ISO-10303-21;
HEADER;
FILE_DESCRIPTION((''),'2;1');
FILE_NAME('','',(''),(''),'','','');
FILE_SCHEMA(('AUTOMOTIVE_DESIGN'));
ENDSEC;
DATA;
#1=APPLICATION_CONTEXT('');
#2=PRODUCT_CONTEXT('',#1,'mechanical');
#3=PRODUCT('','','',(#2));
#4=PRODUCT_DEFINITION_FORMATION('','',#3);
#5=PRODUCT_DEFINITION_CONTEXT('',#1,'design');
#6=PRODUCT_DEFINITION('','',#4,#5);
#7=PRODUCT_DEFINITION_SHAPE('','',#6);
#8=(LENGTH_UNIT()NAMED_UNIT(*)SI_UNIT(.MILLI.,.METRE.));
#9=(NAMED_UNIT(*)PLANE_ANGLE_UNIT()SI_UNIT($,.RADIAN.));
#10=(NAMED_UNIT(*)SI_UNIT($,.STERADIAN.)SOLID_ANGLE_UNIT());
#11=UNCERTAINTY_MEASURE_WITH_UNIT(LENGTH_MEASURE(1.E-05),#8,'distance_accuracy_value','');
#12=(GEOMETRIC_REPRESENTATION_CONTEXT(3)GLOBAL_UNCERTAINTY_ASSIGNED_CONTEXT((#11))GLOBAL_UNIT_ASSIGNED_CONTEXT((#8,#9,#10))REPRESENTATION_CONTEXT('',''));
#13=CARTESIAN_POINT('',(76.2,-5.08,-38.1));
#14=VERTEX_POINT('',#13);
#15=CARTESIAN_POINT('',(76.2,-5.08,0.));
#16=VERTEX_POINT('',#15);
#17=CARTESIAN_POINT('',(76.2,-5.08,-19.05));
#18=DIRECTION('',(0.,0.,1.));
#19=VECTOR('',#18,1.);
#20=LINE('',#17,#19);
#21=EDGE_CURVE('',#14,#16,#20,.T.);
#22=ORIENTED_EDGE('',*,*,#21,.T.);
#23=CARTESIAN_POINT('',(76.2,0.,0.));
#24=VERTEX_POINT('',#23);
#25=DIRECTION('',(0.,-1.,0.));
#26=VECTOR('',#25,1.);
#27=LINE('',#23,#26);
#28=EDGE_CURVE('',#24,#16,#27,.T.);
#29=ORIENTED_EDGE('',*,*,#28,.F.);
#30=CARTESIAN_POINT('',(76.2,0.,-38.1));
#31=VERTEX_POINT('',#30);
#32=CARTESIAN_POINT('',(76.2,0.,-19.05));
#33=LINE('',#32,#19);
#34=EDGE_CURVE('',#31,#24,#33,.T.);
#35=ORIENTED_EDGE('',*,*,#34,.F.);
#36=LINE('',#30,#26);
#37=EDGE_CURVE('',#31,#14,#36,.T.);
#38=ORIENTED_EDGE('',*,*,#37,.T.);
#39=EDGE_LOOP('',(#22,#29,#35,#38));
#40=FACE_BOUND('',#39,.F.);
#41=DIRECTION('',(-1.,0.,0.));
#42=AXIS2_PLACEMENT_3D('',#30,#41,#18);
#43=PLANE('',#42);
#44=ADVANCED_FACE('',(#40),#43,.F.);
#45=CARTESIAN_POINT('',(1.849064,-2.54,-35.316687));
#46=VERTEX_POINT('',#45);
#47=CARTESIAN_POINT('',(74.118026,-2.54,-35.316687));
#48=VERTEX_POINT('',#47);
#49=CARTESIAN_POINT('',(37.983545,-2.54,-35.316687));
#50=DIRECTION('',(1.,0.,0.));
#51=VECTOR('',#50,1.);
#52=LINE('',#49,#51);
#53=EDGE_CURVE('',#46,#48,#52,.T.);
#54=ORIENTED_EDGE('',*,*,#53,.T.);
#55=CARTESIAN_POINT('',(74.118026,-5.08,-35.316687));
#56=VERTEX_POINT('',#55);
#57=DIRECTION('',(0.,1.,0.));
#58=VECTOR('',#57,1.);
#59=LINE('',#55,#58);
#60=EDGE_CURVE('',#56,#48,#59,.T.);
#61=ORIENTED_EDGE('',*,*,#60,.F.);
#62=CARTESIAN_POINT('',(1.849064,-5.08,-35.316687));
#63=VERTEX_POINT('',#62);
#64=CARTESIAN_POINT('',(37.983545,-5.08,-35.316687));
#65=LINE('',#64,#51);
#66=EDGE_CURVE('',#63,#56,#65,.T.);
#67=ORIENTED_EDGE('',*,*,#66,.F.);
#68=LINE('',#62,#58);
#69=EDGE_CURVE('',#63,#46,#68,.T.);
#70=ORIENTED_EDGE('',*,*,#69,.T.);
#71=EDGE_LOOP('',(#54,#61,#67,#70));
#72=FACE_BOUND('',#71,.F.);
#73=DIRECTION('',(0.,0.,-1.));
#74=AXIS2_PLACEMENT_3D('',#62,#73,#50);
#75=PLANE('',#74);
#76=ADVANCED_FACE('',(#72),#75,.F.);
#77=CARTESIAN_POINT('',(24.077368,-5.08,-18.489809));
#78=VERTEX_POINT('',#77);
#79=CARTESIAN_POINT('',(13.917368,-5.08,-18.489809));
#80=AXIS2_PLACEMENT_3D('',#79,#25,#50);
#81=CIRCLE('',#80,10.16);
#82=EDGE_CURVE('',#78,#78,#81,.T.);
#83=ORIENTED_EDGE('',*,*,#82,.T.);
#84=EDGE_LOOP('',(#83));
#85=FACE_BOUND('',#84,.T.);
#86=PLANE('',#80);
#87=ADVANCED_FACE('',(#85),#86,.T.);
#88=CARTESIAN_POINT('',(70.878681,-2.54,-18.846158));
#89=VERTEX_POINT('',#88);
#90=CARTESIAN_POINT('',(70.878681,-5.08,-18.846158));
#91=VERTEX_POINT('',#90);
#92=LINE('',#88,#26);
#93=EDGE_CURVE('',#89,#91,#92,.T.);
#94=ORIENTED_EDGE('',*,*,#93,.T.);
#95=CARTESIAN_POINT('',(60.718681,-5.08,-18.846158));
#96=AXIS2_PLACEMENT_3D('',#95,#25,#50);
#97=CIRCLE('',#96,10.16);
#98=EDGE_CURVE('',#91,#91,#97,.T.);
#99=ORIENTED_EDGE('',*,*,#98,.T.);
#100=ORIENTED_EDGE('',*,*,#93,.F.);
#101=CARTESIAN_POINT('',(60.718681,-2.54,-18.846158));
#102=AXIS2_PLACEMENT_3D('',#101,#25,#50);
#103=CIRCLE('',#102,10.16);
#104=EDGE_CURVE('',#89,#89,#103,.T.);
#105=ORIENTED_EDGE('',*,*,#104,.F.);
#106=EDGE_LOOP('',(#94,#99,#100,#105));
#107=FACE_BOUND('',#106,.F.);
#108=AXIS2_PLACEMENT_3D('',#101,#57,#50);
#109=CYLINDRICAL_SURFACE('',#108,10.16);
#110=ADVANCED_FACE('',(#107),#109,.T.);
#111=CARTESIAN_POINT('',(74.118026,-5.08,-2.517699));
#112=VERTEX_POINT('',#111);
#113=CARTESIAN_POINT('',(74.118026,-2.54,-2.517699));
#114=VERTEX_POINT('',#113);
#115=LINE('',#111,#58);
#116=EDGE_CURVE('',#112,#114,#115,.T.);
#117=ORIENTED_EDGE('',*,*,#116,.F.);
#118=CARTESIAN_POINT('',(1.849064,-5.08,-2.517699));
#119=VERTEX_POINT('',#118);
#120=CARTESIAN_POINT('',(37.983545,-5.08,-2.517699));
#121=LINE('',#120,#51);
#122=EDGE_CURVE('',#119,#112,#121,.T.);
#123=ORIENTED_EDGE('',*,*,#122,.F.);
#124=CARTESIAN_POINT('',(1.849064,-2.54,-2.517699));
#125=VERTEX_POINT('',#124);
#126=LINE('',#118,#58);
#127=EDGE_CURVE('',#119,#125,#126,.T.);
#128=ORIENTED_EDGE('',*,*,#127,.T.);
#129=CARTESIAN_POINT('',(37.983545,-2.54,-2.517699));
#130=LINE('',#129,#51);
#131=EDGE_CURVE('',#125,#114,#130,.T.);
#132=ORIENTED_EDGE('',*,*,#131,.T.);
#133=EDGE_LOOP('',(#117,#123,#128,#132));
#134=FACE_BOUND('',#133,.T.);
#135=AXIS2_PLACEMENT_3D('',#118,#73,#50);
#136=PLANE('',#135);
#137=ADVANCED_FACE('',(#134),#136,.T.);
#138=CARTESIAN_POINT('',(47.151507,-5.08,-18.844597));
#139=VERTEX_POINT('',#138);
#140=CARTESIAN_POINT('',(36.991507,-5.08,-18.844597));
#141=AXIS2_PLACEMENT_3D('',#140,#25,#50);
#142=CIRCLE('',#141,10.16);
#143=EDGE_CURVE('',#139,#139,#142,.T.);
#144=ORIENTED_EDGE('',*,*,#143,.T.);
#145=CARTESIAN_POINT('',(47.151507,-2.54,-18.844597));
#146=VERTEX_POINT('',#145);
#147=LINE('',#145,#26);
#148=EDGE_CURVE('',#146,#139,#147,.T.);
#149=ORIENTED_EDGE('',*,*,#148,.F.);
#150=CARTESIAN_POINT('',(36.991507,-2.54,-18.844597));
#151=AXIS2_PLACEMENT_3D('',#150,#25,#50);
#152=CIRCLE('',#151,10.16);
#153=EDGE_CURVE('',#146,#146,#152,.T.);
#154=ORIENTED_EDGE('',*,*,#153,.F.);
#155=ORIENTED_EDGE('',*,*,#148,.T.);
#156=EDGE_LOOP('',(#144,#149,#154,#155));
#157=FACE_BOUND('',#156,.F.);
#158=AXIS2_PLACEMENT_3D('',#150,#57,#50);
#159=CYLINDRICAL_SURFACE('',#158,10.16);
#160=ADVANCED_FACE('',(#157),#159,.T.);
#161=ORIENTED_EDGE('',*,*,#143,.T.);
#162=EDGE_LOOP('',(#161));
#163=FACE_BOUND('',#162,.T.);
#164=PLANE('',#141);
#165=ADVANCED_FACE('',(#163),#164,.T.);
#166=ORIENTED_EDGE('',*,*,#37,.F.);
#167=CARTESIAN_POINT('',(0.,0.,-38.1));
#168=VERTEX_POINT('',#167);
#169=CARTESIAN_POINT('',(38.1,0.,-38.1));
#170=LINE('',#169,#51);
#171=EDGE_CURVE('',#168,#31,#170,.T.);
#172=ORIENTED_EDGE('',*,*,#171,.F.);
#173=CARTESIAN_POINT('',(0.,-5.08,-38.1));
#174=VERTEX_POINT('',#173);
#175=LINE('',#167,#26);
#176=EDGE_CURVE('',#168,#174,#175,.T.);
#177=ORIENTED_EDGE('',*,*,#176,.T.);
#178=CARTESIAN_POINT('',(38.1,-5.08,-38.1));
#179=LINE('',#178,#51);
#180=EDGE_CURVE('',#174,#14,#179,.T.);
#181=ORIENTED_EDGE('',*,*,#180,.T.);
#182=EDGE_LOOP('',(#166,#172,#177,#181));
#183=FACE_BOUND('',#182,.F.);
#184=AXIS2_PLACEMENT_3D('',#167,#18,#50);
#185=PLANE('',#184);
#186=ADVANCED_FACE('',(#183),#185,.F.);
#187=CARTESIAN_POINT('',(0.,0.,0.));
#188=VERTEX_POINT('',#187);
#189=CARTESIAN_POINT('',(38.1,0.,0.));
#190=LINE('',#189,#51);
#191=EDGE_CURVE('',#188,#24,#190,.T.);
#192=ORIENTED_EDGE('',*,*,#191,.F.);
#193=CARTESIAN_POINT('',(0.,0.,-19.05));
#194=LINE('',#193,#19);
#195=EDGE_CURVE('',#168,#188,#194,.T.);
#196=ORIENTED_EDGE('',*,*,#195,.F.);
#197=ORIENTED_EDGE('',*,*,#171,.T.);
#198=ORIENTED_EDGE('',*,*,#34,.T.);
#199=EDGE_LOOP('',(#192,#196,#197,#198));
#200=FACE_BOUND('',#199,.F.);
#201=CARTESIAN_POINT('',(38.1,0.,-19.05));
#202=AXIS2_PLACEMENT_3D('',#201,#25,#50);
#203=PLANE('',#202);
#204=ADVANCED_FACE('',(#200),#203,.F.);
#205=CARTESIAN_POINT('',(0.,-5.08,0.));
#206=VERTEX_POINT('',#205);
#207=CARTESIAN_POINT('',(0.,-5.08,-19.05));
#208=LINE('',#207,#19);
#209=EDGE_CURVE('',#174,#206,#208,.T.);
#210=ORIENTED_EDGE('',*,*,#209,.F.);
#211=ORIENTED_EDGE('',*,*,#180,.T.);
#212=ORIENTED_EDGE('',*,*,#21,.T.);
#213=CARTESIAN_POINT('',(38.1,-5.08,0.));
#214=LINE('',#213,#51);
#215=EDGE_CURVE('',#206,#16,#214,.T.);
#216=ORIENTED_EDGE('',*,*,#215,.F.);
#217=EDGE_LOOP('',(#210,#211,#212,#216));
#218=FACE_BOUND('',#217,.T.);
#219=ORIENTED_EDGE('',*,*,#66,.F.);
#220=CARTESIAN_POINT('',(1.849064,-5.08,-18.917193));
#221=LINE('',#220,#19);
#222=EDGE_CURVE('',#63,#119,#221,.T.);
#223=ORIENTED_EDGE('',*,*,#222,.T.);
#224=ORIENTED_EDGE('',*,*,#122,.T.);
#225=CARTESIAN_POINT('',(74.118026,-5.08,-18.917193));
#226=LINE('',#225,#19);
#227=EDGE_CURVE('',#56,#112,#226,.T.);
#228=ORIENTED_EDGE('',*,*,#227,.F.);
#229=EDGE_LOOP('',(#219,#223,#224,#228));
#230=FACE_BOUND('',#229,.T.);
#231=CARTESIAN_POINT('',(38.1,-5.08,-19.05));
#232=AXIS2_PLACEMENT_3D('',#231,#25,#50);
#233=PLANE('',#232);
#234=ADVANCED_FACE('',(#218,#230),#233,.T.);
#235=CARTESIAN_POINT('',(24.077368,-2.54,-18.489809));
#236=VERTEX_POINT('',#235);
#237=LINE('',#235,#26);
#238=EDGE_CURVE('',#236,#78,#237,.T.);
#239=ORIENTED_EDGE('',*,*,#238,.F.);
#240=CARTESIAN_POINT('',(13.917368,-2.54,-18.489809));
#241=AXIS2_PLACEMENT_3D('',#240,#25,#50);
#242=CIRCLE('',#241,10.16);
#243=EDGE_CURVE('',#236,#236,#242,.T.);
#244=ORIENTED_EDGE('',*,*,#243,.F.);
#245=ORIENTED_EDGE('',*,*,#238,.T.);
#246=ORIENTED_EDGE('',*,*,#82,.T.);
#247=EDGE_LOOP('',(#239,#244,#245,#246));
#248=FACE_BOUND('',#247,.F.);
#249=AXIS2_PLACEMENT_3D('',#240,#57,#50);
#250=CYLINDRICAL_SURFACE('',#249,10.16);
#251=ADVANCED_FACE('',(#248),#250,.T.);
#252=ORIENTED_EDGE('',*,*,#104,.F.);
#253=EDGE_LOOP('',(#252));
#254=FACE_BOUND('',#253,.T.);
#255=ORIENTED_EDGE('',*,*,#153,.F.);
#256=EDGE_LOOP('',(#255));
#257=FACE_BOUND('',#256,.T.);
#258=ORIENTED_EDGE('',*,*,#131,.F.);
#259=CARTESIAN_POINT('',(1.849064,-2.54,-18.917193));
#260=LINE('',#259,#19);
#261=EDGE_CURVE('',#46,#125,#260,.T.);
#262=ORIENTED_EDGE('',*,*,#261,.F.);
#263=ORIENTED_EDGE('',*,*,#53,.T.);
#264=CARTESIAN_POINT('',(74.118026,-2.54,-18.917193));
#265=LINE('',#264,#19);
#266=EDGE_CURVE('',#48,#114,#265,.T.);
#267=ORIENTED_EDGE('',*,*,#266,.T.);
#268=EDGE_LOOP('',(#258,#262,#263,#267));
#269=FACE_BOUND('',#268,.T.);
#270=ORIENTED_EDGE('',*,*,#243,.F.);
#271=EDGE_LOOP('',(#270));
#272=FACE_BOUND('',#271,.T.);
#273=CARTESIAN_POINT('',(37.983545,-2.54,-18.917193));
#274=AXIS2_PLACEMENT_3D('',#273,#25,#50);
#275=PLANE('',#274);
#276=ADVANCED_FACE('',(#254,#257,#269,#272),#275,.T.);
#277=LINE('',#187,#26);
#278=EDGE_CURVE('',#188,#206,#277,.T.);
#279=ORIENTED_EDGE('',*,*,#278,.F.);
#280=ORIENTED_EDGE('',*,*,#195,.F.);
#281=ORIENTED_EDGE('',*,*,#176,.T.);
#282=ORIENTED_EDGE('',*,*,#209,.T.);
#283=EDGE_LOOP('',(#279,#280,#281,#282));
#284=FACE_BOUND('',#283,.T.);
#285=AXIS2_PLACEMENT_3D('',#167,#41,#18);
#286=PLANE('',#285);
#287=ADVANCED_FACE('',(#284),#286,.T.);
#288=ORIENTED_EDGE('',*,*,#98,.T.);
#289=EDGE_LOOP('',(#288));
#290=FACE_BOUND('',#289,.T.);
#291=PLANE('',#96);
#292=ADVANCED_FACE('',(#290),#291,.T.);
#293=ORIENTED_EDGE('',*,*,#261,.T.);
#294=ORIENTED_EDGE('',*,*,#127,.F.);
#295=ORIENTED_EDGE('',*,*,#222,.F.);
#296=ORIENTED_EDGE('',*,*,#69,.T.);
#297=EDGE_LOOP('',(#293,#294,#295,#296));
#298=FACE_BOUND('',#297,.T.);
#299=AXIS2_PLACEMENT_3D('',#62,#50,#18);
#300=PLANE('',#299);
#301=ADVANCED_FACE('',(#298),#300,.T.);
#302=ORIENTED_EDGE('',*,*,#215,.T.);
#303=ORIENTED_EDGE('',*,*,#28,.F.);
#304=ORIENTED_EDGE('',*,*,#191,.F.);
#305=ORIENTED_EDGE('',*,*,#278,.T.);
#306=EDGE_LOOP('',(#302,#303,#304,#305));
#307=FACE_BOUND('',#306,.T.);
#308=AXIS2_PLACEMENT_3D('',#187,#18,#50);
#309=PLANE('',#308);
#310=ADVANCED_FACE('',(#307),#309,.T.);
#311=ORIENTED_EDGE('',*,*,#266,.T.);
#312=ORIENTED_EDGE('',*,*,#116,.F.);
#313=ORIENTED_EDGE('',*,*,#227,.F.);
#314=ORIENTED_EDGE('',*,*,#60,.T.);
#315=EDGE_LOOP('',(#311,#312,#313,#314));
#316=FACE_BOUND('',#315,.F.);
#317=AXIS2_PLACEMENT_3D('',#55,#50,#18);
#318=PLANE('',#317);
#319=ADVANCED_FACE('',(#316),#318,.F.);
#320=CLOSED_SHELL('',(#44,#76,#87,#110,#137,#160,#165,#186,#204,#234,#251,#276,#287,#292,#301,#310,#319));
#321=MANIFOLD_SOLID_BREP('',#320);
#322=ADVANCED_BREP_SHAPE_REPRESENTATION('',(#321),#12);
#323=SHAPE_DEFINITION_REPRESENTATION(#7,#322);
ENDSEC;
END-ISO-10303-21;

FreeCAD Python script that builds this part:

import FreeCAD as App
import Part
import Sketcher
from FreeCAD import Vector
Q = App.Units.Quantity

doc = App.newDocument("Part")
body = doc.addObject("PartDesign::Body", "Body")

# Sketch on XZ plane
sketch1 = body.newObject("Sketcher::SketchObject", "Sketch")
sketch1.AttachmentSupport = (doc.getObject("XZ_Plane"), [""])
sketch1.MapMode = "FlatFace"
sketch1.addGeometry(Part.LineSegment(Vector(0, 0, 0), Vector(0, -38.1, 0)), False)
sketch1.addGeometry(Part.LineSegment(Vector(0, -38.1, 0), Vector(76.2, -38.1, 0)), False)
sketch1.addGeometry(Part.LineSegment(Vector(76.2, -38.1, 0), Vector(76.2, 0, 0)), False)
sketch1.addGeometry(Part.LineSegment(Vector(76.2, 0, 0), Vector(0, 0, 0)), False)
sketch1.addConstraint(Sketcher.Constraint("Coincident", 0, 2, 1, 1))
sketch1.addConstraint(Sketcher.Constraint("Coincident", 1, 2, 2, 1))
sketch1.addConstraint(Sketcher.Constraint("Coincident", 2, 2, 3, 1))
sketch1.addConstraint(Sketcher.Constraint("Coincident", 3, 2, 0, 1))
sketch1.addConstraint(Sketcher.Constraint("Vertical", 0))
sketch1.addConstraint(Sketcher.Constraint("Horizontal", 1))
sketch1.addConstraint(Sketcher.Constraint("Vertical", 2))
sketch1.addConstraint(Sketcher.Constraint("Horizontal", 3))
sketch1.addConstraint(Sketcher.Constraint("Coincident", 3, 2, -1, 1))
sketch1.addConstraint(Sketcher.Constraint("DistanceX", 1, 1, 1, 2, Q("3 in")))
sketch1.addConstraint(Sketcher.Constraint("DistanceY", 0, 2, 0, 1, Q("1.5 in")))
pad1 = body.newObject("PartDesign::Pad", "Pad")
pad1.Profile = sketch1
pad1.Length = Q("0.2 in")

# Sketch on XZ plane
sketch2 = body.newObject("Sketcher::SketchObject", "Sketch001")
sketch2.AttachmentSupport = (doc.getObject("XZ_Plane"), [""])
sketch2.MapMode = "FlatFace"
sketch2.AttachmentOffset = App.Placement(Vector(0, 0, 0.2 * 25.4), App.Rotation())
sketch2.addGeometry(Part.LineSegment(Vector(1.849064, -2.517699, 0), Vector(1.849064, -35.316687, 0)), False)
sketch2.addGeometry(Part.LineSegment(Vector(1.849064, -35.316687, 0), Vector(74.118026, -35.316687, 0)), False)
sketch2.addGeometry(Part.LineSegment(Vector(74.118026, -35.316687, 0), Vector(74.118026, -2.517699, 0)), False)
sketch2.addGeometry(Part.LineSegment(Vector(74.118026, -2.517699, 0), Vector(1.849064, -2.517699, 0)), False)
sketch2.addConstraint(Sketcher.Constraint("Coincident", 0, 2, 1, 1))
sketch2.addConstraint(Sketcher.Constraint("Coincident", 1, 2, 2, 1))
sketch2.addConstraint(Sketcher.Constraint("Coincident", 2, 2, 3, 1))
sketch2.addConstraint(Sketcher.Constraint("Coincident", 3, 2, 0, 1))
sketch2.addConstraint(Sketcher.Constraint("Vertical", 0))
sketch2.addConstraint(Sketcher.Constraint("Horizontal", 1))
sketch2.addConstraint(Sketcher.Constraint("Vertical", 2))
sketch2.addConstraint(Sketcher.Constraint("Horizontal", 3))
sketch2.addConstraint(Sketcher.Constraint("DistanceX", 1, 1, 1, 2, 72.268962))
sketch2.addConstraint(Sketcher.Constraint("DistanceY", 2, 2, -1, 1, 2.517699))
sketch2.addConstraint(Sketcher.Constraint("DistanceY", 0, 2, 0, 1, 32.798988))
sketch2.addConstraint(Sketcher.Constraint("DistanceX", -1, 1, 0, 2, 1.849064))
pocket1 = body.newObject("PartDesign::Pocket", "Pocket")
pocket1.Profile = sketch2
pocket1.Length = Q("0.1 in")

# Sketch on XZ plane
sketch3 = body.newObject("Sketcher::SketchObject", "Sketch002")
sketch3.AttachmentSupport = (doc.getObject("XZ_Plane"), [""])
sketch3.MapMode = "FlatFace"
sketch3.AttachmentOffset = App.Placement(Vector(0, 0, 0.1 * 25.4), App.Rotation())
sketch3.addGeometry(Part.Circle(Vector(13.917368, -18.489809, 0), Vector(0, 0, 1), 10.16), False)
sketch3.addGeometry(Part.Circle(Vector(36.991507, -18.844597, 0), Vector(0, 0, 1), 10.16), False)
sketch3.addGeometry(Part.Circle(Vector(60.718681, -18.846158, 0), Vector(0, 0, 1), 10.16), False)
sketch3.addConstraint(Sketcher.Constraint("Equal", 0, 1))
sketch3.addConstraint(Sketcher.Constraint("Equal", 1, 2))
sketch3.addConstraint(Sketcher.Constraint("Diameter", 0, Q("0.8 in")))
sketch3.addConstraint(Sketcher.Constraint("DistanceY", 0, 3, -1, 1, 18.489809))
sketch3.addConstraint(Sketcher.Constraint("DistanceX", -1, 1, 2, 3, 60.718681))
sketch3.addConstraint(Sketcher.Constraint("DistanceX", 0, 3, 1, 3, 23.074139))
sketch3.addConstraint(Sketcher.Constraint("DistanceY", 2, 3, 1, 3, 0.001561))
sketch3.addConstraint(Sketcher.Constraint("DistanceY", 2, 3, 0, 3, 0.356349))
sketch3.addConstraint(Sketcher.Constraint("DistanceX", -1, 1, 0, 3, 13.917368))
pad2 = body.newObject("PartDesign::Pad", "Pad001")
pad2.Profile = sketch3
pad2.Length = Q("0.1 in")

doc.recompute()
